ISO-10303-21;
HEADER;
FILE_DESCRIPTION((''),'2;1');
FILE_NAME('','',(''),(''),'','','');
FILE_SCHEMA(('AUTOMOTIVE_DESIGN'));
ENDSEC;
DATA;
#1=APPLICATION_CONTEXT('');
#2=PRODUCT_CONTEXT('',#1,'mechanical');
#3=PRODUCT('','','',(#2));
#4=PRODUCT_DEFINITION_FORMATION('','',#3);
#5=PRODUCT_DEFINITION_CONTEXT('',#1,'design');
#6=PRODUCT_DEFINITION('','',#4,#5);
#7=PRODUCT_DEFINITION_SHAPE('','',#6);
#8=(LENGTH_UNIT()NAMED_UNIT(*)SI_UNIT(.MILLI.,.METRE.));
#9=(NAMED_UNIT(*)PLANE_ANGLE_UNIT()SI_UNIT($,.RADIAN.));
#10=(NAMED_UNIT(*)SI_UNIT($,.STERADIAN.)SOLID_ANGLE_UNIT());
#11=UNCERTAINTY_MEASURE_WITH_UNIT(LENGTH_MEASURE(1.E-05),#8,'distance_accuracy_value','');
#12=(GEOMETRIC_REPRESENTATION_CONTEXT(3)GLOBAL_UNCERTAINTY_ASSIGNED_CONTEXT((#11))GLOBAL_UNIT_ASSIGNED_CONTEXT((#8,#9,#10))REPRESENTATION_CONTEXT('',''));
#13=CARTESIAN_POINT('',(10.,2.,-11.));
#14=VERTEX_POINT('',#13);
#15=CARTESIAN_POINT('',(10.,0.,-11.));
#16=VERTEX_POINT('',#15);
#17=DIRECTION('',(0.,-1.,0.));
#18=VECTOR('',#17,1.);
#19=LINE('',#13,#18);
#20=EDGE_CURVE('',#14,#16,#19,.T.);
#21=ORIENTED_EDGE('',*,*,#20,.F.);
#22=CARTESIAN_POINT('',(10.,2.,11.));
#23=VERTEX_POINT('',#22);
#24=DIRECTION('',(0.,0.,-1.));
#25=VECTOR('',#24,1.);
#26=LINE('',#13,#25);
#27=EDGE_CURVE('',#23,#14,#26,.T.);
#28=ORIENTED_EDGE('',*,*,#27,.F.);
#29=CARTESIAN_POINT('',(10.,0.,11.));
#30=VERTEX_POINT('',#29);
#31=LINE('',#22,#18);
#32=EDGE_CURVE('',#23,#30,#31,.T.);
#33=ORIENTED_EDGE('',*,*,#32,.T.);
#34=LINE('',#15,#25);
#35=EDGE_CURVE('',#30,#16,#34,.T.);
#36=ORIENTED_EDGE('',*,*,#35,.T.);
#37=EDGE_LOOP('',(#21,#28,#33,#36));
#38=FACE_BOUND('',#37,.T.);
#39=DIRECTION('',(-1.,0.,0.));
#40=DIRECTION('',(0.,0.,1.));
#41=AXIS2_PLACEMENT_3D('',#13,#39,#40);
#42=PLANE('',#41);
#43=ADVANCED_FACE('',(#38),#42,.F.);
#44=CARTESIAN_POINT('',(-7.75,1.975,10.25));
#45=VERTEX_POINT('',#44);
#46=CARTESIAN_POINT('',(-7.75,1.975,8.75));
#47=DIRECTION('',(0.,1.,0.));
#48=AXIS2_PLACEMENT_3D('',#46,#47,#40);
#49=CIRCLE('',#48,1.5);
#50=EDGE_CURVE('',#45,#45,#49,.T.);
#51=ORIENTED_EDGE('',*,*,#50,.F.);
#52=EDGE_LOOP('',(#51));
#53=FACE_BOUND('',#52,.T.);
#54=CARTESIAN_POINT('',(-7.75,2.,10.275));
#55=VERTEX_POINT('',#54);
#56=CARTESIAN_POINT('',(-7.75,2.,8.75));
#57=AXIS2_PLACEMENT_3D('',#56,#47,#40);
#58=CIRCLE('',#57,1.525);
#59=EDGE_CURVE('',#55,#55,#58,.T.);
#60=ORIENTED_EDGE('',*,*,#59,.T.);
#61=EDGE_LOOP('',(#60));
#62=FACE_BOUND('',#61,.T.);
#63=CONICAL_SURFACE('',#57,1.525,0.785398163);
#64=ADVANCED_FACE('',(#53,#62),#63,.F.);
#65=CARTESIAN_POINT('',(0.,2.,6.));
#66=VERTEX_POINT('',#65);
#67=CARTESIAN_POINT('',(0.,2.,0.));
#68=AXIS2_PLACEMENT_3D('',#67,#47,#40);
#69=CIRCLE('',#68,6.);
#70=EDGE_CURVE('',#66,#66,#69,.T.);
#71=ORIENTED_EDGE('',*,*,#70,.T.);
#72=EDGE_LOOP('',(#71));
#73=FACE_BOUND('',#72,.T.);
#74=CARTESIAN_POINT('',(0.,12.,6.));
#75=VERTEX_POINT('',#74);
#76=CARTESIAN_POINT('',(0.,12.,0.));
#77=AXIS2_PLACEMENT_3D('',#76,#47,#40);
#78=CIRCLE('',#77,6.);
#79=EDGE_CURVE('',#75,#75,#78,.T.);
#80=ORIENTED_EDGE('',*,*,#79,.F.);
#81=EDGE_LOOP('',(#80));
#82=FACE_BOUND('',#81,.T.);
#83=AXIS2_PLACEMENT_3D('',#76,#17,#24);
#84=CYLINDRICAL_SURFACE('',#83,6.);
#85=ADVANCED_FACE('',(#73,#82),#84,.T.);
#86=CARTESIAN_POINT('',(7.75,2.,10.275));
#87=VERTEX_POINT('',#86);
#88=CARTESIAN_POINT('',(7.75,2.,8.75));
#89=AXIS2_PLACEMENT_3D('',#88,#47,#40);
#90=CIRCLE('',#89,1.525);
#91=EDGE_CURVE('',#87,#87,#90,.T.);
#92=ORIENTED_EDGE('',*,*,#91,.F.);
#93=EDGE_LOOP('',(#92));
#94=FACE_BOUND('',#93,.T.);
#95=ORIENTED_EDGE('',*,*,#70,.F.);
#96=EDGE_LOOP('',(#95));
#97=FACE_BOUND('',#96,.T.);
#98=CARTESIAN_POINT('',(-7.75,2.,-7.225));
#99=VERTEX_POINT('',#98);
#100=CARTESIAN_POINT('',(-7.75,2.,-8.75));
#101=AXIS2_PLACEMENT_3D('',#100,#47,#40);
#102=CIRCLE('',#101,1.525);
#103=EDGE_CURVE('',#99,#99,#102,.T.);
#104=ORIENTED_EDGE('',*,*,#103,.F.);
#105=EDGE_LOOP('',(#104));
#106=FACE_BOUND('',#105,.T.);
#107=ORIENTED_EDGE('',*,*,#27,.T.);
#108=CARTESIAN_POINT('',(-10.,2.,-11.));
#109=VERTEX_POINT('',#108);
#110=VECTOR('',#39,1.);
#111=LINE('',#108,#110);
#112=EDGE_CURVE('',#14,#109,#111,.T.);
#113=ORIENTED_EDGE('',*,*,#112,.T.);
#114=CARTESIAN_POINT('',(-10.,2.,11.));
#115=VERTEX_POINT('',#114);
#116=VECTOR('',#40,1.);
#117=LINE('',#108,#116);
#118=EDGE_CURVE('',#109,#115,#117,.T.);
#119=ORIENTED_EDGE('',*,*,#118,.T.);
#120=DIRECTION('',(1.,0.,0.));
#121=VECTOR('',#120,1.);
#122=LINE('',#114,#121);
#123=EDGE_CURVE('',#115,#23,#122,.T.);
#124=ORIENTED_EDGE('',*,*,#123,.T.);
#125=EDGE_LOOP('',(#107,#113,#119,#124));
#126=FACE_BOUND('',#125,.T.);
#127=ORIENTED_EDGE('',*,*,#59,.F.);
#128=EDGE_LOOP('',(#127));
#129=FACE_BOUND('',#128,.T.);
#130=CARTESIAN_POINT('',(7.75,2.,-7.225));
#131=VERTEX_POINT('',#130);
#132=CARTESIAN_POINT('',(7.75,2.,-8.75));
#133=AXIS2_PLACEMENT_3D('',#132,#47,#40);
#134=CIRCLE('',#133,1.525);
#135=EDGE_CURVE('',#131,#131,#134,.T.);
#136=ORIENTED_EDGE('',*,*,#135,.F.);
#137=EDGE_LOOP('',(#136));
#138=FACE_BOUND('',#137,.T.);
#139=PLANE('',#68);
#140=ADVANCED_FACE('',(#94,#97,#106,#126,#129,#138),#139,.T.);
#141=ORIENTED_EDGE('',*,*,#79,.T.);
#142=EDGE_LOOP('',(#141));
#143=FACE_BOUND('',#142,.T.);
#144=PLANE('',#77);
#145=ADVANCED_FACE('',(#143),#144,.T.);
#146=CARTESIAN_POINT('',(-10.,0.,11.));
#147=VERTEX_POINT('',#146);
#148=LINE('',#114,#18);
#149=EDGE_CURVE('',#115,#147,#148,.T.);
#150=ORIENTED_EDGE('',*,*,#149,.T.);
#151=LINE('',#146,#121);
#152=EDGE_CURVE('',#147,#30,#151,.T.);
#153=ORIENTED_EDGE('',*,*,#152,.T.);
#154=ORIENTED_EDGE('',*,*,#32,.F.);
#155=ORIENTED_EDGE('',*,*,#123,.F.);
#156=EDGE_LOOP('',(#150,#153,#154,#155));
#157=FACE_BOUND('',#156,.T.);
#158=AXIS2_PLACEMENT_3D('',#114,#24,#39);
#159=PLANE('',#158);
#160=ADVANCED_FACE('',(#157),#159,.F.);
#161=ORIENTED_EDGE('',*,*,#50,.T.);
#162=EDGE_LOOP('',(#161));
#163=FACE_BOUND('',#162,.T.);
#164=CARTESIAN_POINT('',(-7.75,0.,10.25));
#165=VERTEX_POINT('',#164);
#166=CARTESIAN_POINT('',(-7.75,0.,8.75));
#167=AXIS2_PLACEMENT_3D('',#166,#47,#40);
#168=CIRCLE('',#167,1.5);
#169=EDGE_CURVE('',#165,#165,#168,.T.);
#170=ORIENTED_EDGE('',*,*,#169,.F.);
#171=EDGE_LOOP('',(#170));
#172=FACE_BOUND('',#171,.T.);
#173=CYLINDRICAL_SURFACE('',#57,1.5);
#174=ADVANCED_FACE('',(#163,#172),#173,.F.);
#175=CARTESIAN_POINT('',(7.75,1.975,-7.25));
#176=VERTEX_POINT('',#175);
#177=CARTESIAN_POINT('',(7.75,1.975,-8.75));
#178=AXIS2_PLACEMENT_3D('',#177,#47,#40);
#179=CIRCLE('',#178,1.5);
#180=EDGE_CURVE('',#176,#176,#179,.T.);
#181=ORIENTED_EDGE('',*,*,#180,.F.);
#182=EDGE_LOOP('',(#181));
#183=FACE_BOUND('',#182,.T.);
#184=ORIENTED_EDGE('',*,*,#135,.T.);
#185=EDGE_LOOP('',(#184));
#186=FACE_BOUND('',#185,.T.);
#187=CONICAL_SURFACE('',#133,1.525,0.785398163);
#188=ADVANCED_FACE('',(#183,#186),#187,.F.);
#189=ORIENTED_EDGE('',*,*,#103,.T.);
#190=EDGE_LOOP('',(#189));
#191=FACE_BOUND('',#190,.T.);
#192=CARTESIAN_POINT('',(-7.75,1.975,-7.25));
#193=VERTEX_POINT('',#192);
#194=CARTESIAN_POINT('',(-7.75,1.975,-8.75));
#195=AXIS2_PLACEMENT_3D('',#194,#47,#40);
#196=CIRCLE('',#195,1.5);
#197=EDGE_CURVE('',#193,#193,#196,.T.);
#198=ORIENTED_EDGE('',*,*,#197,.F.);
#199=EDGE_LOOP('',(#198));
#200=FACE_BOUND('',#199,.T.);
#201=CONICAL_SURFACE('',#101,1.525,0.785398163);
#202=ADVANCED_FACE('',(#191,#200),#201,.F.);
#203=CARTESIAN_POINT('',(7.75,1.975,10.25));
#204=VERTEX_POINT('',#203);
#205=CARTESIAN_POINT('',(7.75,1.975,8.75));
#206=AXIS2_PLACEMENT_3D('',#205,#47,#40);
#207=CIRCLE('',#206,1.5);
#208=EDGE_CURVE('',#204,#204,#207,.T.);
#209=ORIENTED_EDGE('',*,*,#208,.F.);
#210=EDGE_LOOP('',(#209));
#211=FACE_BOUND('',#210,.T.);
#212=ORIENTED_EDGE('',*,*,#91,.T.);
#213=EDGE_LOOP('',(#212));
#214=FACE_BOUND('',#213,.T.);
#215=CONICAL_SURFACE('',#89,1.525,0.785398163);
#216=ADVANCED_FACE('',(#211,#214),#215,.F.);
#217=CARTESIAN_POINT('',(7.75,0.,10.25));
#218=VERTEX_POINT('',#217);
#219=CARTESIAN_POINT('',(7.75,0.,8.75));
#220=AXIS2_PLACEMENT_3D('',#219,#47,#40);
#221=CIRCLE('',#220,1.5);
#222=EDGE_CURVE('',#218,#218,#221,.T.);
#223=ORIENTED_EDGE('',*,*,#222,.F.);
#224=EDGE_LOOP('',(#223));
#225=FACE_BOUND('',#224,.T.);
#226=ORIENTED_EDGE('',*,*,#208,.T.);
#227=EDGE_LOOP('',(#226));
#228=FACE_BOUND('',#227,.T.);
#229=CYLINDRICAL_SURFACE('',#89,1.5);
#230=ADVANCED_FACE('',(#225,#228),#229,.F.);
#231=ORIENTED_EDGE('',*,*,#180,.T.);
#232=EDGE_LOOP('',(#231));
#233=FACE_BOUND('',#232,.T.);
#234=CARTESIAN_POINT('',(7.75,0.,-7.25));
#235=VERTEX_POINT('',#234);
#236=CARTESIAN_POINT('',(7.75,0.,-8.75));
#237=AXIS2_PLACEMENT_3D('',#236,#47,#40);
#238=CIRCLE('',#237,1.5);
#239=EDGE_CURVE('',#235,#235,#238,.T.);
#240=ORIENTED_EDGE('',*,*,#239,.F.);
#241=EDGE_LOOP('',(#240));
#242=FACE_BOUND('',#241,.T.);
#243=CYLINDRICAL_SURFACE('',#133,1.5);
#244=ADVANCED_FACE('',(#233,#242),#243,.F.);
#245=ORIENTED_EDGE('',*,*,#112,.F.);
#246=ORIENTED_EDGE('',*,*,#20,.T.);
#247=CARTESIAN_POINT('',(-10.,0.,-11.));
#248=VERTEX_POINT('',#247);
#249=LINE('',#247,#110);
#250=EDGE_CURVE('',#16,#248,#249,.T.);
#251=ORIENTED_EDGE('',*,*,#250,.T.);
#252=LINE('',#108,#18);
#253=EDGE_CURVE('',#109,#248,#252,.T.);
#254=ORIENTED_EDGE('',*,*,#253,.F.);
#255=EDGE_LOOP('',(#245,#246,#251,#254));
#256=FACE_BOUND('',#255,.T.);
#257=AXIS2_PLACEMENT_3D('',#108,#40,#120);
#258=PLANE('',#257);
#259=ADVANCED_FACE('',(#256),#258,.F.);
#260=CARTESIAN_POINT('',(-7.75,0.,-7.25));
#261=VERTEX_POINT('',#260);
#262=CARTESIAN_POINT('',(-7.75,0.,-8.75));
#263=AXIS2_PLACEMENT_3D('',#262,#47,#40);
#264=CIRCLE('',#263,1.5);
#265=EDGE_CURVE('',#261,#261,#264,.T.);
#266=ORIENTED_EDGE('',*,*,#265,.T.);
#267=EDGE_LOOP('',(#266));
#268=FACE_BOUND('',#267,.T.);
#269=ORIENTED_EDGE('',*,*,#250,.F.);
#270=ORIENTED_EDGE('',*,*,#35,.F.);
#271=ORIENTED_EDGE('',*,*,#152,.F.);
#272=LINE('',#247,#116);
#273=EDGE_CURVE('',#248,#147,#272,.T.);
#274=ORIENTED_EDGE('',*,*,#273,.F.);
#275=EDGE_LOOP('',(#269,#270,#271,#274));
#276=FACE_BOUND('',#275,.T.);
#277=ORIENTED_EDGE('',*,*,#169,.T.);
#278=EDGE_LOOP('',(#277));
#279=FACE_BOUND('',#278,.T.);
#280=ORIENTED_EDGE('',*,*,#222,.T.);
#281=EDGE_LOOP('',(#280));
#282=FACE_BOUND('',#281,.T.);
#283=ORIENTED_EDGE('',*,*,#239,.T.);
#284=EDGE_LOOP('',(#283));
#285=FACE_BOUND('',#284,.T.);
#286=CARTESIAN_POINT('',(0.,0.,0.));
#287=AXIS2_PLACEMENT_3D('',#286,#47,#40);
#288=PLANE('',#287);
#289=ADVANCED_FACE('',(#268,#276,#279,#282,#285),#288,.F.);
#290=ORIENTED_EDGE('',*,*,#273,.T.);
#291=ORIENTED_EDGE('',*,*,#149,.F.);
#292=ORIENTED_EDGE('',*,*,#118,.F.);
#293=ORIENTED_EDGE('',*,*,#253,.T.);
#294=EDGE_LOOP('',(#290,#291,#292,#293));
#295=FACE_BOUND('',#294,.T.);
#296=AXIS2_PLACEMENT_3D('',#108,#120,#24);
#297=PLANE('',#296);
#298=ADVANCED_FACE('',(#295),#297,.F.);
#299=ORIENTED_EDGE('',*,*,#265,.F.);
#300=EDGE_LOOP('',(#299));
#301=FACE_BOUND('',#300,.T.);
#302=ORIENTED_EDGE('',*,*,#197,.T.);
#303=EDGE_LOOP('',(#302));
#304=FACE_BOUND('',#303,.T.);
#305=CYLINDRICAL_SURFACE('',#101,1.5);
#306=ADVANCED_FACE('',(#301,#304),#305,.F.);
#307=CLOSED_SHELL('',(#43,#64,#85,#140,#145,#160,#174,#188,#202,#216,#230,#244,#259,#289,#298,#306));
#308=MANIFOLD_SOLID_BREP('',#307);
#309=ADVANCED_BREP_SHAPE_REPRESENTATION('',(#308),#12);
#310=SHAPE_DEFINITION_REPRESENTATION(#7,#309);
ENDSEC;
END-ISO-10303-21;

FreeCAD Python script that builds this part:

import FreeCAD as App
import Part
import Sketcher

doc = App.newDocument("Part")
body = doc.addObject("PartDesign::Body", "Body")

sketch1 = body.newObject("Sketcher::SketchObject", "Sketch")
sketch1.AttachmentSupport = (doc.getObject("XZ_Plane"), [""])
sketch1.MapMode = "FlatFace"
sketch1.addGeometry(Part.LineSegment(App.Vector(-10, -11, 0), App.Vector(-10, 11, 0)), False)
sketch1.addGeometry(Part.LineSegment(App.Vector(-10, 11, 0), App.Vector(10, 11, 0)), False)
sketch1.addGeometry(Part.LineSegment(App.Vector(10, 11, 0), App.Vector(10, -11, 0)), False)
sketch1.addGeometry(Part.LineSegment(App.Vector(10, -11, 0), App.Vector(-10, -11, 0)), False)
sketch1.addConstraint(Sketcher.Constraint("Coincident", 0, 2, 1, 1))
sketch1.addConstraint(Sketcher.Constraint("Coincident", 1, 2, 2, 1))
sketch1.addConstraint(Sketcher.Constraint("Coincident", 2, 2, 3, 1))
sketch1.addConstraint(Sketcher.Constraint("Coincident", 3, 2, 0, 1))
sketch1.addConstraint(Sketcher.Constraint("Vertical", 0))
sketch1.addConstraint(Sketcher.Constraint("Horizontal", 1))
sketch1.addConstraint(Sketcher.Constraint("Vertical", 2))
sketch1.addConstraint(Sketcher.Constraint("Horizontal", 3))
sketch1.addConstraint(Sketcher.Constraint("Symmetric", 0, 2, 2, 2, -1, 1))
sketch1.addConstraint(Sketcher.Constraint("DistanceX", 1, 1, 1, 2, 20.0))
sketch1.addConstraint(Sketcher.Constraint("DistanceY", 0, 1, 0, 2, 22.0))
pad1 = body.newObject("PartDesign::Pad", "Pad")
pad1.Profile = sketch1
pad1.Length = 2
pad1.Reversed = True

sketch2 = body.newObject("Sketcher::SketchObject", "Sketch001")
sketch2.AttachmentSupport = (doc.getObject("XZ_Plane"), [""])
sketch2.MapMode = "FlatFace"
sketch2.AttachmentOffset = App.Placement(App.Vector(0, 0, -2), App.Rotation())
sketch2.addGeometry(Part.Circle(App.Vector(-7.8, -8.8, 0), App.Vector(0, 0, 1), 1.5), False)
sketch2.addGeometry(Part.Circle(App.Vector(7.8, 8.8, 0), App.Vector(0, 0, 1), 1.5), False)
sketch2.addGeometry(Part.Circle(App.Vector(-7.8, 8.8, 0), App.Vector(0, 0, 1), 1.5), False)
sketch2.addGeometry(Part.Circle(App.Vector(7.8, -8.8, 0), App.Vector(0, 0, 1), 1.5), False)
sketch2.addConstraint(Sketcher.Constraint("Equal", 0, 1))
sketch2.addConstraint(Sketcher.Constraint("Equal", 1, 2))
sketch2.addConstraint(Sketcher.Constraint("Equal", 2, 3))
sketch2.addConstraint(Sketcher.Constraint("Symmetric", 0, 3, 1, 3, -1, 1))
sketch2.addConstraint(Sketcher.Constraint("Symmetric", 2, 3, 3, 3, -1, 1))
sketch2.addConstraint(Sketcher.Constraint("Symmetric", 1, 3, 2, 3, -2))
sketch2.addConstraint(Sketcher.Constraint("Diameter", 0, 3.0))
sketch2.addConstraint(Sketcher.Constraint("DistanceX", 0, 3, 1, 3, 15.5))
sketch2.addConstraint(Sketcher.Constraint("DistanceY", 0, 3, 1, 3, 17.5))
doc.recompute()
hole = body.newObject("PartDesign::Hole", "Hole")
hole.Profile = sketch2
hole.ThreadType = "None"
hole.Diameter = 3
hole.DepthType = "ThroughAll"
hole.HoleCutType = "Countersink"
hole.HoleCutDiameter = 3.05
hole.HoleCutCountersinkAngle = 90
hole.Reversed = True

sketch3 = body.newObject("Sketcher::SketchObject", "Sketch002")
sketch3.AttachmentSupport = (doc.getObject("XZ_Plane"), [""])
sketch3.MapMode = "FlatFace"
sketch3.AttachmentOffset = App.Placement(App.Vector(0, 0, -2), App.Rotation())
sketch3.addGeometry(Part.Circle(App.Vector(0, 0, 0), App.Vector(0, 0, 1), 6), False)
sketch3.addConstraint(Sketcher.Constraint("Coincident", 0, 3, -1, 1))
sketch3.addConstraint(Sketcher.Constraint("Diameter", 0, 12.0))
pad2 = body.newObject("PartDesign::Pad", "Pad001")
pad2.Profile = sketch3
pad2.Length = 10
pad2.Reversed = True

doc.recompute()
